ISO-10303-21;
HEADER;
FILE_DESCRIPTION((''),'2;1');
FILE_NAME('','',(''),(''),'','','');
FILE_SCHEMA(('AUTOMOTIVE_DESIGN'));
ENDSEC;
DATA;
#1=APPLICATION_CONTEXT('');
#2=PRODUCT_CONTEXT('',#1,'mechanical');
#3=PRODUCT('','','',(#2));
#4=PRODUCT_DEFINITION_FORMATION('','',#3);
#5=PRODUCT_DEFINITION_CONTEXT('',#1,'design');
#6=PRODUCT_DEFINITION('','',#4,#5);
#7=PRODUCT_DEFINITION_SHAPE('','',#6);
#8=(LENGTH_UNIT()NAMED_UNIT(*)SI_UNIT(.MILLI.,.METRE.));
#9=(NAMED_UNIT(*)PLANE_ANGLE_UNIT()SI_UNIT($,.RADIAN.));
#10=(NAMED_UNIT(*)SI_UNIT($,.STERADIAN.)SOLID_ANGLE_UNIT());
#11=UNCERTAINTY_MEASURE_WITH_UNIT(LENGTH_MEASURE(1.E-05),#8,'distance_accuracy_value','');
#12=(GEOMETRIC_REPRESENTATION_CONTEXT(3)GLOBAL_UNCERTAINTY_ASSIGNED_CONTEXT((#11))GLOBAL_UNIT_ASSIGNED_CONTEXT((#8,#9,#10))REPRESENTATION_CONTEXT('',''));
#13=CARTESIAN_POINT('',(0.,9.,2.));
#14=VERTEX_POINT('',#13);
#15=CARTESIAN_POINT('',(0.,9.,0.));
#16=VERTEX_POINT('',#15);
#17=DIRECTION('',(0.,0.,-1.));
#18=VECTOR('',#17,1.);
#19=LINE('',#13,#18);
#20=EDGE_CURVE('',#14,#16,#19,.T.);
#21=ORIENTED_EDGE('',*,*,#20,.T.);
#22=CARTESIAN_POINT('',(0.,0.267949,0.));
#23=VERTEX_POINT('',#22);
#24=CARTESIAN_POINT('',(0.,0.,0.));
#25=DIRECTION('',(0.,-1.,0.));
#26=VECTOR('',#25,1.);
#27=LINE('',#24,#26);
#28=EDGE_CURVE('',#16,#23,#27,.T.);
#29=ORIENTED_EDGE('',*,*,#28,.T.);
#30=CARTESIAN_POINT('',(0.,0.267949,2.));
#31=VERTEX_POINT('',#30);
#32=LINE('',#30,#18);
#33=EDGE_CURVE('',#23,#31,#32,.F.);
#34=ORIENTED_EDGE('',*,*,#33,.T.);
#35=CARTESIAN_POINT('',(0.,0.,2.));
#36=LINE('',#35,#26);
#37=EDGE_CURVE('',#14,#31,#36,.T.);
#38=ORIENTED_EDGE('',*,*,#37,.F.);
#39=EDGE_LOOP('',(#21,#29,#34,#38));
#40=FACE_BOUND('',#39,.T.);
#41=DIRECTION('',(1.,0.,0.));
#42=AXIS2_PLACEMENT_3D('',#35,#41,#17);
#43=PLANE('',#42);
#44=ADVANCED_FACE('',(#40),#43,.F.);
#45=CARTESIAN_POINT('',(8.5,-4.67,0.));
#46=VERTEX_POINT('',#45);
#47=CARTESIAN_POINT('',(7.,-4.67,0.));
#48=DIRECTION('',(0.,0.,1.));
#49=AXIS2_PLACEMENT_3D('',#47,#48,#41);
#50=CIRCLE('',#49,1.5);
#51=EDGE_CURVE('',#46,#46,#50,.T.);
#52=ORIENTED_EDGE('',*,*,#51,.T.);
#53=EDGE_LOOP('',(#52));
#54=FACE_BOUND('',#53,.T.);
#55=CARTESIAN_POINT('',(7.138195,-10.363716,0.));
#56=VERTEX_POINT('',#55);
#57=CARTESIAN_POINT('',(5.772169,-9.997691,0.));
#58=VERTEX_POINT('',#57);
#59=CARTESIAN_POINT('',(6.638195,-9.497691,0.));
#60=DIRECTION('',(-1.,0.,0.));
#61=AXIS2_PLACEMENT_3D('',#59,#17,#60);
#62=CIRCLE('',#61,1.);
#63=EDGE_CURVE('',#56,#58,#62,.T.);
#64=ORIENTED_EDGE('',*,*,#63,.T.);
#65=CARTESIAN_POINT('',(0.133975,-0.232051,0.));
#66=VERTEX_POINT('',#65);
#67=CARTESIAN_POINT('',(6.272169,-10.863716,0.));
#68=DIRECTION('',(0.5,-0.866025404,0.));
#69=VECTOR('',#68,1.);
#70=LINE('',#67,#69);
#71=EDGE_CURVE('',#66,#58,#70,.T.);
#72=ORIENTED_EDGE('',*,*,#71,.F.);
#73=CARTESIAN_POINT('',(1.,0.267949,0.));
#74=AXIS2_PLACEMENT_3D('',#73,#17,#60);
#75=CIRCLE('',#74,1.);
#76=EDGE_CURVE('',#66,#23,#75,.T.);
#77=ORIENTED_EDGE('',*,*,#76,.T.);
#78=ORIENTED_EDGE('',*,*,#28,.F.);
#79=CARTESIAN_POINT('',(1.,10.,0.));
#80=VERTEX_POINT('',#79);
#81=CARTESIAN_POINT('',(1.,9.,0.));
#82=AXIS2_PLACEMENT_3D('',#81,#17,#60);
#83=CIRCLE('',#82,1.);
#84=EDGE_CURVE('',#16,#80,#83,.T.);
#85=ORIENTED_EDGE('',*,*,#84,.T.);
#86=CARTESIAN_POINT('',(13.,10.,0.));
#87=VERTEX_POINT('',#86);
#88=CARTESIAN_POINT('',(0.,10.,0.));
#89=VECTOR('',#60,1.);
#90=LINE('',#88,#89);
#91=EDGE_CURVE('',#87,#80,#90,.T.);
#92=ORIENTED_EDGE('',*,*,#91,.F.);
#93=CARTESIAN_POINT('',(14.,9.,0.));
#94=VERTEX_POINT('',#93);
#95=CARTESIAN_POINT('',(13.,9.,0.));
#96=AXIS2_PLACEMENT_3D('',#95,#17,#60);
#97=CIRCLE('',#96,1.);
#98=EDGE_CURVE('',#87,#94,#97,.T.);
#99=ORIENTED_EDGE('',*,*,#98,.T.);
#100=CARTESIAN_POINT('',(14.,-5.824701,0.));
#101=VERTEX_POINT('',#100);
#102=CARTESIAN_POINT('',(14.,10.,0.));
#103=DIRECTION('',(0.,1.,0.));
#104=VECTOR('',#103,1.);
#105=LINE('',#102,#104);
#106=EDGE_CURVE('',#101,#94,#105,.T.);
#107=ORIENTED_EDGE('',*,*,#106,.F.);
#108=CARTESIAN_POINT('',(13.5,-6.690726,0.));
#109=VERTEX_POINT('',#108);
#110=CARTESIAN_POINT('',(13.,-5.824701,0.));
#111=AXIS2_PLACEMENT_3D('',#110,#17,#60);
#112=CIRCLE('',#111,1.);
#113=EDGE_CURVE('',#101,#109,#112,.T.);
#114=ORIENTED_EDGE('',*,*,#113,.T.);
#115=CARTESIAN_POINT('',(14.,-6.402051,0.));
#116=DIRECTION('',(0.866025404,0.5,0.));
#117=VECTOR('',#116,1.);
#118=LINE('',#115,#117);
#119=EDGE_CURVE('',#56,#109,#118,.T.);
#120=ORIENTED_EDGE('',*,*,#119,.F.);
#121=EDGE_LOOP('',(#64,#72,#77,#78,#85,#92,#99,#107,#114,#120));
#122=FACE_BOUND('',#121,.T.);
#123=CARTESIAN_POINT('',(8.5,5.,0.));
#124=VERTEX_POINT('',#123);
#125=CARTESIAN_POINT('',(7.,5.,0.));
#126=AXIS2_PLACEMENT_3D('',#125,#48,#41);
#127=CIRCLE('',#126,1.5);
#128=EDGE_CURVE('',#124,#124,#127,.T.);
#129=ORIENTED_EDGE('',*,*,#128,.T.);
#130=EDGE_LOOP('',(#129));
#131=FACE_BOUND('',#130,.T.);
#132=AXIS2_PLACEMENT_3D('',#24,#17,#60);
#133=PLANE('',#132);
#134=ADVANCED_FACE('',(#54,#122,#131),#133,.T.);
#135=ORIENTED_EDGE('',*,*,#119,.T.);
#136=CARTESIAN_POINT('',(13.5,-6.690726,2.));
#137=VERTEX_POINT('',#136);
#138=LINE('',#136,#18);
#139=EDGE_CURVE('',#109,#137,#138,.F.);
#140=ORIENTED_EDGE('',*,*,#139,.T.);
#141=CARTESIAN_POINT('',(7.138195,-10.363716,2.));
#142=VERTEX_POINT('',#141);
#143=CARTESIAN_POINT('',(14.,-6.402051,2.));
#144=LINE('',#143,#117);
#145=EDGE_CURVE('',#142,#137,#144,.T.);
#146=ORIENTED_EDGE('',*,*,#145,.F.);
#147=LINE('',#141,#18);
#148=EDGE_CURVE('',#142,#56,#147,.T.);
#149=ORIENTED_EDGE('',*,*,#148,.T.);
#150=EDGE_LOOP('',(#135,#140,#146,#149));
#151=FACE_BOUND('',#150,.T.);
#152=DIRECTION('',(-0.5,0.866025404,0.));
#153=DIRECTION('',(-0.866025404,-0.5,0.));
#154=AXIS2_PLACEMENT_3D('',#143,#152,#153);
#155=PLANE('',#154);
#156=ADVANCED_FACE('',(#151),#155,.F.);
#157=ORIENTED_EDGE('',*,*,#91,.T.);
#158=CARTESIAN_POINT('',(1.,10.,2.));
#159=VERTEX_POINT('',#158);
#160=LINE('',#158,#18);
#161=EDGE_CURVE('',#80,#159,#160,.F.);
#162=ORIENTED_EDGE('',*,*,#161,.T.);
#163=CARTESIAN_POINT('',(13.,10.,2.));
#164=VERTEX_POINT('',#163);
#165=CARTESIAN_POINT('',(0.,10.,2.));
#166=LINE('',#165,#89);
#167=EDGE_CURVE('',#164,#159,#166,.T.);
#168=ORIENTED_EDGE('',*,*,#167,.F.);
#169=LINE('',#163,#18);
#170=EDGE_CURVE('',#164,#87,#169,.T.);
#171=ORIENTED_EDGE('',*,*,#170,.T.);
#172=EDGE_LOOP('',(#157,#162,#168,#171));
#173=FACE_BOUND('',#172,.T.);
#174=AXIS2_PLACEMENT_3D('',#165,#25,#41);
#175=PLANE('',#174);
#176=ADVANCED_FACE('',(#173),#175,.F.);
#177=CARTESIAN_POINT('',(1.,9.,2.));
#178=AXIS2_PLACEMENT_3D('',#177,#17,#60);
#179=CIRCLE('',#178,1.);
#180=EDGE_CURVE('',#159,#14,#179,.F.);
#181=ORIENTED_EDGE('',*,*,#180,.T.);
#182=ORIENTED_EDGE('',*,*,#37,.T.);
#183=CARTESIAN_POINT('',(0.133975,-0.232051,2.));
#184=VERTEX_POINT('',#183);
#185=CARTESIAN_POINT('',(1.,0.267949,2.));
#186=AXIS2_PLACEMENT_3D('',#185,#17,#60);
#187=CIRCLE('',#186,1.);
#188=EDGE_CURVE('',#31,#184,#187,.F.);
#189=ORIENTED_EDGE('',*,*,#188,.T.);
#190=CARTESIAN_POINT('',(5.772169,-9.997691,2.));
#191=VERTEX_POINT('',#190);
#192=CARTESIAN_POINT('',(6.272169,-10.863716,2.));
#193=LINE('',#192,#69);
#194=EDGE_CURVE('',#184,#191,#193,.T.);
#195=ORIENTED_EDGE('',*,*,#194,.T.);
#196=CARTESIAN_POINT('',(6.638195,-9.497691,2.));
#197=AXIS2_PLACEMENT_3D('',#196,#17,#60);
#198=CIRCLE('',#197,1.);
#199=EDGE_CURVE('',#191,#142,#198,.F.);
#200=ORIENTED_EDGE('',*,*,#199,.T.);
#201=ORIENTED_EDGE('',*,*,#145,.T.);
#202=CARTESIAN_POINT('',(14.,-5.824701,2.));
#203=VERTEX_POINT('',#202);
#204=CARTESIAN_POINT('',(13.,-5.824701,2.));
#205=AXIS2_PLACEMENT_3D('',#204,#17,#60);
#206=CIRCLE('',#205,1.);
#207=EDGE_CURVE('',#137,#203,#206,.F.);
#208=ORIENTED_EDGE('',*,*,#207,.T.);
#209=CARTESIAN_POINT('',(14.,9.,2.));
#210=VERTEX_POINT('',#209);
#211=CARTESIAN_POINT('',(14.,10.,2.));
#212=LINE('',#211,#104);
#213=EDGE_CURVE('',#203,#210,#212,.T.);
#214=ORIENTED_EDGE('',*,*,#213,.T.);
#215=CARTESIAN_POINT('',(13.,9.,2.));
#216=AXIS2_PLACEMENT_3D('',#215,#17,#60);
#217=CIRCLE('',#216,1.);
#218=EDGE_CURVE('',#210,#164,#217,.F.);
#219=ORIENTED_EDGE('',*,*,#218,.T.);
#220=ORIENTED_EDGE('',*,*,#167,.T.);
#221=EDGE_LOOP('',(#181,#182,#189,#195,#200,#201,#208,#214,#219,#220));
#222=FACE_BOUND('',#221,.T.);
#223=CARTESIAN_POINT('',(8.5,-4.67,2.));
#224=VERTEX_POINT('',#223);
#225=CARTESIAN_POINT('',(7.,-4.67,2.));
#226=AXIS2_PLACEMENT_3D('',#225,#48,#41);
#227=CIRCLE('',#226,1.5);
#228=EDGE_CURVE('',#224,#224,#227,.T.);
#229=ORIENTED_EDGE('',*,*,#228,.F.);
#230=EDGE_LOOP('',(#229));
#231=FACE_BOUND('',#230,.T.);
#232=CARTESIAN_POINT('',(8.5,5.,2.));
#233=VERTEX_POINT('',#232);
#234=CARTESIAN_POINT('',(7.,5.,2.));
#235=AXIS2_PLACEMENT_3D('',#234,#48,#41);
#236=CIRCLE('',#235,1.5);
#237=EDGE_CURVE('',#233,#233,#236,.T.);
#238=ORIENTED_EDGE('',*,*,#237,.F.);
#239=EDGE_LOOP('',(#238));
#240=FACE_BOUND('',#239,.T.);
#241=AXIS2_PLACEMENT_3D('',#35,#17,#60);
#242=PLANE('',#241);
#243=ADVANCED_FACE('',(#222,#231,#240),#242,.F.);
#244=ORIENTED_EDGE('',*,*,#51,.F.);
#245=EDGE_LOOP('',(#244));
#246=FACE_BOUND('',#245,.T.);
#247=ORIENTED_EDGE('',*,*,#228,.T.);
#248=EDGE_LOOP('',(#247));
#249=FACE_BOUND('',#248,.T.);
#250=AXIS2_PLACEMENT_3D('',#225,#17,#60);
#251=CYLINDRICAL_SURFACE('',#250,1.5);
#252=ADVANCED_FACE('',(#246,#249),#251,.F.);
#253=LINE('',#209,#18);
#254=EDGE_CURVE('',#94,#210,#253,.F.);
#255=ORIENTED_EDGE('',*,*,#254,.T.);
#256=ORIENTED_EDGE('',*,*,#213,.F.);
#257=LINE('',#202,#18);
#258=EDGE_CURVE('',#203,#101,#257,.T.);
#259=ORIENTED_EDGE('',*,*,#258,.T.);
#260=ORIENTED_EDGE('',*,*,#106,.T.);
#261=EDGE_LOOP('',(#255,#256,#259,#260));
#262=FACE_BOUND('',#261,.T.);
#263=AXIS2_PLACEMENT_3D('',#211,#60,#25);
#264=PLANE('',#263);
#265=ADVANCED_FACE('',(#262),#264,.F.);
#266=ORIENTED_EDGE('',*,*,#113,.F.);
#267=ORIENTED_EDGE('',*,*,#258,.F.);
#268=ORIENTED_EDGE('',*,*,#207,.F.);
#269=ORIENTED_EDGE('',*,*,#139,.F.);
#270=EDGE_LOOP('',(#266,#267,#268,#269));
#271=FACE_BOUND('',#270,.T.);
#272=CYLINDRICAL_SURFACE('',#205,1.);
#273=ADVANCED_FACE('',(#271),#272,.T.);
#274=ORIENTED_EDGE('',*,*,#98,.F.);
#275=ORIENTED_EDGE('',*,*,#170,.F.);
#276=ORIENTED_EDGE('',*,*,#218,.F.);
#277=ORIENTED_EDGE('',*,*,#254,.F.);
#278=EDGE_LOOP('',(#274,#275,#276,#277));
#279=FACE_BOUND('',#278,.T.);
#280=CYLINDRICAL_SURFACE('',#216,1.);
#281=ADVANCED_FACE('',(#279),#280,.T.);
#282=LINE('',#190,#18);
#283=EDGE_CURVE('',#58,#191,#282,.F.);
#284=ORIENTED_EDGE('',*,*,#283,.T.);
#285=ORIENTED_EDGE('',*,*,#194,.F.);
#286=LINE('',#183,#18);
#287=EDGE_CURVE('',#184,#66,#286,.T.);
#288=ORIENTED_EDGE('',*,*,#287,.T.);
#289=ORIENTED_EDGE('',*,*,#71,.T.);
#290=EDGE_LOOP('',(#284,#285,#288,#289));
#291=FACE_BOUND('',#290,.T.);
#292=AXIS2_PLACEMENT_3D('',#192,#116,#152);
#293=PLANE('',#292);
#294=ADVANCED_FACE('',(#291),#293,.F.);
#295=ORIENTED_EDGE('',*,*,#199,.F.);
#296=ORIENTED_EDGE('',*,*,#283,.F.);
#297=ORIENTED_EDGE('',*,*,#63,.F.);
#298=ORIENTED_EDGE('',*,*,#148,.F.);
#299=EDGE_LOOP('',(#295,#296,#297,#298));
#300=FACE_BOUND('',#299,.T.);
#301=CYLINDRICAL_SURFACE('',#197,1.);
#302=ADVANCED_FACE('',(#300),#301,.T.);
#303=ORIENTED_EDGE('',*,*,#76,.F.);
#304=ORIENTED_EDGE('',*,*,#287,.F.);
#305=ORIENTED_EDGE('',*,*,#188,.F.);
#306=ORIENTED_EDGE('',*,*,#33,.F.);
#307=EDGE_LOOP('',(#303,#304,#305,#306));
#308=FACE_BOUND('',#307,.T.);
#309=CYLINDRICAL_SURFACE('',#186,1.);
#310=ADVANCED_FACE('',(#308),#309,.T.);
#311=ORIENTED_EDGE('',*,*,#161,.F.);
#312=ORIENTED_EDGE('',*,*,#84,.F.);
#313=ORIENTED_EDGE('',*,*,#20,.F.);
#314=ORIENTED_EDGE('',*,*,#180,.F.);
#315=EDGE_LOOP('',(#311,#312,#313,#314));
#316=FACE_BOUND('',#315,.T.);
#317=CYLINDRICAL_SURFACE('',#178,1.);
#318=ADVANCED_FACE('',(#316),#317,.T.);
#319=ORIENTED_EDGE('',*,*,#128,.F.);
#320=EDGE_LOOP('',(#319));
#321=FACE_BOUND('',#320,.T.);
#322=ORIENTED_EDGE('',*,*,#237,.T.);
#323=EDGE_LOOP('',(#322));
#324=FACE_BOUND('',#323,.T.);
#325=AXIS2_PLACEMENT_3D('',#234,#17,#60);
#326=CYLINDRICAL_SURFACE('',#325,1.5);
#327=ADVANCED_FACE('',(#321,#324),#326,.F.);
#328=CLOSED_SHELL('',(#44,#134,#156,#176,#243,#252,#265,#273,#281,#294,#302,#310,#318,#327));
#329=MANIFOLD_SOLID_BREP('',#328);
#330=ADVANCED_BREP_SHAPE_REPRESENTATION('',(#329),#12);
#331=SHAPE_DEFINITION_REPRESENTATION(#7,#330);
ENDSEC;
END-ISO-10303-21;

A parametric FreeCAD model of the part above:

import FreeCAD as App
import Part
import Sketcher
from FreeCAD import Vector
Q = App.Units.Quantity


def edges_at(feature, points):
    """Names of the edges that pass closest to the given points."""
    edges = feature.Shape.Edges
    near = lambda p: min(range(len(edges)), key=lambda i: edges[i].distToShape(Part.Vertex(*p))[0])
    return sorted({f"Edge{near(p) + 1}" for p in points})

doc = App.newDocument("Part")
body = doc.addObject("PartDesign::Body", "Body")

# Sketch on XY plane
sketch1 = body.newObject("Sketcher::SketchObject", "Sketch")
sketch1.AttachmentSupport = (doc.getObject("XY_Plane"), [""])
sketch1.MapMode = "FlatFace"
sketch1.addGeometry([
    Part.LineSegment(Vector(14, 10, 0), Vector(0, 10, 0)),  # 0
    Part.LineSegment(Vector(0, 10, 0), Vector(0, 0, 0)),  # 1
    Part.LineSegment(Vector(0, 0, 0), Vector(6.272169, -10.863716, 0)),  # 2
    Part.LineSegment(Vector(6.272169, -10.863716, 0), Vector(14, -6.402051, 0)),  # 3
    Part.LineSegment(Vector(14, -6.402051, 0), Vector(14, 10, 0)),  # 4
    Part.Circle(Vector(7, -4.67, 0), Vector(0, 0, 1), 1.5),  # 5
    Part.Circle(Vector(7, 5, 0), Vector(0, 0, 1), 1.5),  # 6
], False)
sketch1.addConstraint([
    Sketcher.Constraint("Coincident", 0, 2, 1, 1),
    Sketcher.Constraint("Coincident", 1, 2, 2, 1),
    Sketcher.Constraint("Coincident", 2, 2, 3, 1),
    Sketcher.Constraint("Coincident", 3, 2, 4, 1),
    Sketcher.Constraint("Coincident", 4, 2, 0, 1),
    Sketcher.Constraint("Horizontal", 0),
    Sketcher.Constraint("Vertical", 1),
    Sketcher.Constraint("Vertical", 4),
    Sketcher.Constraint("Coincident", 1, 2, -1, 1),
    Sketcher.Constraint("Equal", 5, 6),
    Sketcher.Constraint("Perpendicular", 2, 3),
    Sketcher.Constraint("Vertical", 5, 3, 6, 3),
    Sketcher.Constraint("Diameter", 5, Q("3 mm")),
    Sketcher.Constraint("DistanceX", 0, 2, 0, 1, Q("14 mm")),
    Sketcher.Constraint("DistanceY", 1, 2, 1, 1, Q("10 mm")),
    Sketcher.Constraint("Angle", 2, Q("-60 deg")),
    Sketcher.Constraint("DistanceX", -1, 1, 5, 3, Q("7 mm")),
    Sketcher.Constraint("DistanceY", -1, 1, 6, 3, Q("5 mm")),
    Sketcher.Constraint("DistanceY", 5, 3, -1, 1, Q("4.67 mm")),
    Sketcher.Constraint("DistanceY", 4, 1, 4, 2, Q("16.402051 mm")),
])
pad1 = body.newObject("PartDesign::Pad", "Pad")
pad1.Profile = sketch1
pad1.Length = 2
doc.recompute()

fillet = body.newObject("PartDesign::Fillet", "Fillet")
fillet.Base = (pad1, edges_at(pad1, [
    (0, 10, 1),
    (14, 10, 1),
    (14, -6.402, 1),
    (6.272, -10.864, 1),
    (0, 0, 1),
]))
fillet.Radius = 1

doc.recompute()
